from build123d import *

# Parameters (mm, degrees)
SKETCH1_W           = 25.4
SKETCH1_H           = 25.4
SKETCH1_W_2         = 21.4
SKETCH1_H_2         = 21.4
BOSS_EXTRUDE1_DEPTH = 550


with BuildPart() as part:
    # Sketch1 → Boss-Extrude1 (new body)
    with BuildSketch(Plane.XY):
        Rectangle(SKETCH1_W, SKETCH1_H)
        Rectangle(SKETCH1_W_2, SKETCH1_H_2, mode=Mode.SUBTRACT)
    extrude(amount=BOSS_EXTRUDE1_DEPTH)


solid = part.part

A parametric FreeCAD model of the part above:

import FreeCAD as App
import Part
import Sketcher

V = App.Vector


def add_polygon(sketch, points):
    """Adds a closed chain of lines whose ends are joined by coincident constraints."""
    first, n = sketch.GeometryCount, len(points)
    for a, b in zip(points, points[1:] + points[:1]):
        sketch.addGeometry(Part.LineSegment(App.Vector(*a, 0), App.Vector(*b, 0)), False)
    for i in range(n):
        sketch.addConstraint(Sketcher.Constraint("Coincident", first + i, 2, first + (i + 1) % n, 1))

doc = App.newDocument("Part")
body = doc.addObject("PartDesign::Body", "Body")

sketch1 = body.newObject("Sketcher::SketchObject", "Sketch")
sketch1.AttachmentSupport = (doc.getObject("XY_Plane"), [""])
sketch1.MapMode = "FlatFace"
add_polygon(sketch1, [(-13, 13), (-13, -13), (13, -13), (13, 13)])
add_polygon(sketch1, [(11, -11), (-11, -11), (-11, 11), (11, 11)])
sketch1.addConstraint(Sketcher.Constraint("Vertical", 0))
sketch1.addConstraint(Sketcher.Constraint("Horizontal", 1))
sketch1.addConstraint(Sketcher.Constraint("Vertical", 2))
sketch1.addConstraint(Sketcher.Constraint("Horizontal", 3))
sketch1.addConstraint(Sketcher.Constraint("Horizontal", 4))
sketch1.addConstraint(Sketcher.Constraint("Vertical", 5))
sketch1.addConstraint(Sketcher.Constraint("Horizontal", 6))
sketch1.addConstraint(Sketcher.Constraint("Vertical", 7))
sketch1.addConstraint(Sketcher.Constraint("Symmetric", 0, 2, 2, 2, -1, 1))
sketch1.addConstraint(Sketcher.Constraint("Symmetric", 4, 2, 6, 2, -1, 1))
sketch1.addConstraint(Sketcher.Constraint("Equal", 3, 0))
sketch1.addConstraint(Sketcher.Constraint("Equal", 6, 5))
sketch1.addConstraint(Sketcher.Constraint("DistanceX", 1, 1, 1, 2, 25.4))
sketch1.addConstraint(Sketcher.Constraint("DistanceX", 4, 2, 4, 1, 21.4))
pad1 = body.newObject("PartDesign::Pad", "Pad")
pad1.Profile = sketch1
pad1.Length = 550

doc.recompute()
